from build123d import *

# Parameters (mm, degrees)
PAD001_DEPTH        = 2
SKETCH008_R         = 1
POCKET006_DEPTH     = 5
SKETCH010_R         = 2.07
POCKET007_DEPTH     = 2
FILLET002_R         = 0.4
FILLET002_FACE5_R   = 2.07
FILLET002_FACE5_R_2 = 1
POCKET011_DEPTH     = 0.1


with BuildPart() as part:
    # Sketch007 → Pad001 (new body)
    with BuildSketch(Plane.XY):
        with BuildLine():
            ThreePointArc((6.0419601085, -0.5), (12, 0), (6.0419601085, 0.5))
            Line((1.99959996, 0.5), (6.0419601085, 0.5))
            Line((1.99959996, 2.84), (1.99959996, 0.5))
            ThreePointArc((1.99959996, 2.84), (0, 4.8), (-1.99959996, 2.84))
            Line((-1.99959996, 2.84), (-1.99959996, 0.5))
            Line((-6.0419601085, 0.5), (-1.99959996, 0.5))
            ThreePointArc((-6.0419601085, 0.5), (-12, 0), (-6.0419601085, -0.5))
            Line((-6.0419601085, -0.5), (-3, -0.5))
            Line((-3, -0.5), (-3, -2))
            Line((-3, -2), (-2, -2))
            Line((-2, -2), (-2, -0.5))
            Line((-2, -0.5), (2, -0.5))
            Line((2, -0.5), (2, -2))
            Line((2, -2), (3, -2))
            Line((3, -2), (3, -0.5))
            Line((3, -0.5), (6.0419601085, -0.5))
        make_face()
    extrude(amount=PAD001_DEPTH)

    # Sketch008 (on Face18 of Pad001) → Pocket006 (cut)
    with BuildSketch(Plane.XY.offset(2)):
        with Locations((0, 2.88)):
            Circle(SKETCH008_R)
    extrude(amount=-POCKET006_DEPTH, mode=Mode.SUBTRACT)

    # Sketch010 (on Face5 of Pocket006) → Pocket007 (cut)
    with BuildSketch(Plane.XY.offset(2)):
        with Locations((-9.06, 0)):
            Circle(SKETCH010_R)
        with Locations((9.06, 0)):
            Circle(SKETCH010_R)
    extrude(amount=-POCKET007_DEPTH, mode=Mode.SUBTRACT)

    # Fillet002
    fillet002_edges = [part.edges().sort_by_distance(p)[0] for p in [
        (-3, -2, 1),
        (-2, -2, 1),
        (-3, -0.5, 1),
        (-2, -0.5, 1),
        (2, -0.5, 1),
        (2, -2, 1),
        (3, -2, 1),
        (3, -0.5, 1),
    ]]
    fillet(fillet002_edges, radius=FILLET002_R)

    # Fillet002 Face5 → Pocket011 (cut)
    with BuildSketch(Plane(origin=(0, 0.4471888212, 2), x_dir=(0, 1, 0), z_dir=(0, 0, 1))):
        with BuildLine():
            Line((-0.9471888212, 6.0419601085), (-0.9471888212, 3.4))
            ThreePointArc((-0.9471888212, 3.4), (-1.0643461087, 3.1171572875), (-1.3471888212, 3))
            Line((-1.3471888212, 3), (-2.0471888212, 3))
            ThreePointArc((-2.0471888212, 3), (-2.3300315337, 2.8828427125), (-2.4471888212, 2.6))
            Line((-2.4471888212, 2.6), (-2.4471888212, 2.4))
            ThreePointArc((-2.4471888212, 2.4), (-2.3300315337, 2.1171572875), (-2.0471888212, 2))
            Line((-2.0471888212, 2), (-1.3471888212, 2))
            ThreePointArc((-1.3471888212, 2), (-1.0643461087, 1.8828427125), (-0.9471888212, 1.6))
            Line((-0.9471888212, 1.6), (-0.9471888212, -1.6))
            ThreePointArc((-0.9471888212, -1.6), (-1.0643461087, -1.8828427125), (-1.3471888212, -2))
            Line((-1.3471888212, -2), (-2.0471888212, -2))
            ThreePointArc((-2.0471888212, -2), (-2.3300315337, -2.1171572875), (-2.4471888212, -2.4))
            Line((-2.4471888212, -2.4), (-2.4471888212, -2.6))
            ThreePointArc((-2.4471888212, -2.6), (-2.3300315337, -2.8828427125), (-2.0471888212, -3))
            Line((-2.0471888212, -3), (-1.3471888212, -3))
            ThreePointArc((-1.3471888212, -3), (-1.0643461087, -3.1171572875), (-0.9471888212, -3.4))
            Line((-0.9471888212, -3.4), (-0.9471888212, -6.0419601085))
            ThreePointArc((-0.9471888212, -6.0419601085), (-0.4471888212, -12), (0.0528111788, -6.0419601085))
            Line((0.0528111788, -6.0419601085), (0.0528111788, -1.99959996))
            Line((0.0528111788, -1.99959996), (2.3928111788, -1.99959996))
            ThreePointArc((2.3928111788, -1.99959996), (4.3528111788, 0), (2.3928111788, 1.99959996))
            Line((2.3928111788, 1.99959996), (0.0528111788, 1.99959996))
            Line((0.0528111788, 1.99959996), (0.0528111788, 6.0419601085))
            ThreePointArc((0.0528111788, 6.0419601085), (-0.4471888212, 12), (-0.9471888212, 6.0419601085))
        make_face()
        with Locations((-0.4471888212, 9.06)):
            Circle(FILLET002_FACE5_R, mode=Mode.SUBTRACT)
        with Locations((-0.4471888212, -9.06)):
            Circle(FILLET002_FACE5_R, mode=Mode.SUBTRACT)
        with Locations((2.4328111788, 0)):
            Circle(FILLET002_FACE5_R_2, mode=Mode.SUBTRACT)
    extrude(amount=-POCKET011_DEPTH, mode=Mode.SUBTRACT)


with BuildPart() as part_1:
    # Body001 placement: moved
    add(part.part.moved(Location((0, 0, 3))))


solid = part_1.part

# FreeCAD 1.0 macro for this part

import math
import FreeCAD as App
import Part
import Sketcher
from FreeCAD import Vector


def edges_at(feature, points):
    """Names of the edges that pass closest to the given points."""
    edges = feature.Shape.Edges
    near = lambda p: min(range(len(edges)), key=lambda i: edges[i].distToShape(Part.Vertex(*p))[0])
    return sorted({f"Edge{near(p) + 1}" for p in points})

doc = App.newDocument("Part")
params = doc.addObject("Spreadsheet::Sheet", "Params")
for row, (alias, value) in enumerate([
    ("sketch1_radius", "3 mm"),
    ("sketch1_radius2", "2 mm"),
    ("sketch1_width", "1 mm"),
    ("sketch1_width2", "4 mm"),
    ("sketch1_height", "1.5 mm"),
    ("pad1_length", "2 mm"),
    ("sketch2_diameter", "2 mm"),
    ("pocket1_length", "5 mm"),
    ("sketch3_diameter", "4.14 mm"),
    ("pocket2_length", "2 mm"),
    ("fillet_radius", "0.4 mm"),
    ("sketch4_diameter", "2 mm"),
    ("sketch4_radius", "3 mm"),
    ("sketch4_radius2", "2 mm"),
    ("sketch4_radius3", "0.4 mm"),
    ("sketch4_diameter2", "4.14 mm"),
    ("pocket3_length", "0.1 mm"),
], start=1):
    params.set(f"A{row}", alias)
    params.set(f"B{row}", "=" + value)
    params.setAlias(f"B{row}", alias)

body = doc.addObject("PartDesign::Body", "Body")

# Sketch on XY plane
sketch1 = doc.addObject("Sketcher::SketchObject", "Sketch")
body.addObject(sketch1)
sketch1.AttachmentSupport = (doc.XY_Plane, [""])
sketch1.MapMode = "FlatFace"
sketch1.addGeometry(Part.ArcOfCircle(Part.Circle(Vector(9, 0, 0), Vector(0, 0, 1), 3), math.radians(-170), math.radians(170)), False)
sketch1.addGeometry(Part.LineSegment(Vector(6, 0.5, 0), Vector(2, 0.5, 0)), False)
sketch1.addGeometry(Part.LineSegment(Vector(2, 0.5, 0), Vector(2, 2.8, 0)), False)
sketch1.addGeometry(Part.ArcOfCircle(Part.Circle(Vector(0, 2.8, 0), Vector(0, 0, 1), 2), math.radians(1), math.radians(179)), False)
sketch1.addGeometry(Part.LineSegment(Vector(-2, 2.8, 0), Vector(-2, 0.5, 0)), False)
sketch1.addGeometry(Part.LineSegment(Vector(-2, 0.5, 0), Vector(-6, 0.5, 0)), False)
sketch1.addGeometry(Part.ArcOfCircle(Part.Circle(Vector(-9, 0, 0), Vector(0, 0, 1), 3), math.radians(10), math.radians(350)), False)
sketch1.addGeometry(Part.LineSegment(Vector(-6, -0.5, 0), Vector(-3, -0.5, 0)), False)
sketch1.addGeometry(Part.LineSegment(Vector(-3, -0.5, 0), Vector(-3, -2, 0)), False)
sketch1.addGeometry(Part.LineSegment(Vector(-3, -2, 0), Vector(-2, -2, 0)), False)
sketch1.addGeometry(Part.LineSegment(Vector(-2, -2, 0), Vector(-2, -0.5, 0)), False)
sketch1.addGeometry(Part.LineSegment(Vector(-2, -0.5, 0), Vector(2, -0.5, 0)), False)
sketch1.addGeometry(Part.LineSegment(Vector(2, -0.5, 0), Vector(2, -2, 0)), False)
sketch1.addGeometry(Part.LineSegment(Vector(2, -2, 0), Vector(3, -2, 0)), False)
sketch1.addGeometry(Part.LineSegment(Vector(3, -2, 0), Vector(3, -0.5, 0)), False)
sketch1.addGeometry(Part.LineSegment(Vector(3, -0.5, 0), Vector(6, -0.5, 0)), False)
sketch1.addConstraint(Sketcher.Constraint("Coincident", 0, 2, 1, 1))
sketch1.addConstraint(Sketcher.Constraint("Coincident", 1, 2, 2, 1))
sketch1.addConstraint(Sketcher.Constraint("Coincident", 2, 2, 3, 1))
sketch1.addConstraint(Sketcher.Constraint("Coincident", 3, 2, 4, 1))
sketch1.addConstraint(Sketcher.Constraint("Coincident", 4, 2, 5, 1))
sketch1.addConstraint(Sketcher.Constraint("Coincident", 5, 2, 6, 1))
sketch1.addConstraint(Sketcher.Constraint("Coincident", 6, 2, 7, 1))
sketch1.addConstraint(Sketcher.Constraint("Coincident", 7, 2, 8, 1))
sketch1.addConstraint(Sketcher.Constraint("Coincident", 8, 2, 9, 1))
sketch1.addConstraint(Sketcher.Constraint("Coincident", 9, 2, 10, 1))
sketch1.addConstraint(Sketcher.Constraint("Coincident", 10, 2, 11, 1))
sketch1.addConstraint(Sketcher.Constraint("Coincident", 11, 2, 12, 1))
sketch1.addConstraint(Sketcher.Constraint("Coincident", 12, 2, 13, 1))
sketch1.addConstraint(Sketcher.Constraint("Coincident", 13, 2, 14, 1))
sketch1.addConstraint(Sketcher.Constraint("Coincident", 14, 2, 15, 1))
sketch1.addConstraint(Sketcher.Constraint("Coincident", 15, 2, 0, 1))
sketch1.addConstraint(Sketcher.Constraint("Horizontal", 1))
sketch1.addConstraint(Sketcher.Constraint("Vertical", 2))
sketch1.addConstraint(Sketcher.Constraint("Vertical", 4))
sketch1.addConstraint(Sketcher.Constraint("Horizontal", 5))
sketch1.addConstraint(Sketcher.Constraint("Horizontal", 7))
sketch1.addConstraint(Sketcher.Constraint("Vertical", 8))
sketch1.addConstraint(Sketcher.Constraint("Horizontal", 9))
sketch1.addConstraint(Sketcher.Constraint("Vertical", 10))
sketch1.addConstraint(Sketcher.Constraint("Horizontal", 11))
sketch1.addConstraint(Sketcher.Constraint("Vertical", 12))
sketch1.addConstraint(Sketcher.Constraint("Horizontal", 13))
sketch1.addConstraint(Sketcher.Constraint("Vertical", 14))
sketch1.addConstraint(Sketcher.Constraint("Horizontal", 15))
sketch1.addConstraint(Sketcher.Constraint("Equal", 0, 6))
sketch1.addConstraint(Sketcher.Constraint("Symmetric", 0, 3, 6, 3, -1, 1))
sketch1.addConstraint(Sketcher.Constraint("Symmetric", 2, 2, 3, 2, -2))
sketch1.addConstraint(Sketcher.Constraint("Symmetric", 0, 2, 5, 2, -2))
sketch1.addConstraint(Sketcher.Constraint("Symmetric", 9, 2, 12, 2, -2))
sketch1.addConstraint(Sketcher.Constraint("Symmetric", 7, 2, 14, 2, -2))
sketch1.addConstraint(Sketcher.Constraint("Horizontal", 7, 2, 10, 2))
sketch1.addConstraint(Sketcher.Constraint("Vertical", 5, 2, 6, 2))
sketch1.addConstraint(Sketcher.Constraint("Radius", 0, 3.0))
sketch1.addConstraint(Sketcher.Constraint("Radius", 3, 2.0))
sketch1.addConstraint(Sketcher.Constraint("DistanceX", 9, 1, 9, 2, 1.0))
sketch1.addConstraint(Sketcher.Constraint("DistanceX", 11, 1, 11, 2, 4.0))
sketch1.addConstraint(Sketcher.Constraint("DistanceY", 8, 2, 8, 1, 1.5))
sketch1.addConstraint(Sketcher.Constraint("DistanceX", -1, 1, 0, 3, 9.0))
sketch1.addConstraint(Sketcher.Constraint("DistanceY", 8, 2, -1, 1, 2.0))
sketch1.addConstraint(Sketcher.Constraint("DistanceY", 2, 1, 2, 2, 2.34))
sketch1.addConstraint(Sketcher.Constraint("DistanceY", -1, 1, 3, 3, 2.8))
sketch1.setExpression("Constraints[37]", "Params.sketch1_radius")
sketch1.setExpression("Constraints[38]", "Params.sketch1_radius2")
sketch1.setExpression("Constraints[39]", "Params.sketch1_width")
sketch1.setExpression("Constraints[40]", "Params.sketch1_width2")
sketch1.setExpression("Constraints[41]", "Params.sketch1_height")
pad1 = doc.addObject("PartDesign::Pad", "Pad")
body.addObject(pad1)
pad1.Profile = sketch1
pad1.setExpression("Length", "Params.pad1_length")

# Sketch on XY plane
sketch2 = doc.addObject("Sketcher::SketchObject", "Sketch001")
body.addObject(sketch2)
sketch2.AttachmentSupport = (doc.XY_Plane, [""])
sketch2.MapMode = "FlatFace"
sketch2.AttachmentOffset = App.Placement(Vector(0, 0, 2), App.Rotation())
sketch2.addGeometry(Part.Circle(Vector(0, 2.9, 0), Vector(0, 0, 1), 1), False)
sketch2.addConstraint(Sketcher.Constraint("PointOnObject", 0, 3, -2))
sketch2.addConstraint(Sketcher.Constraint("Diameter", 0, 2.0))
sketch2.addConstraint(Sketcher.Constraint("DistanceY", -1, 1, 0, 3, 2.88))
sketch2.setExpression("Constraints[1]", "Params.sketch2_diameter")
pocket1 = doc.addObject("PartDesign::Pocket", "Pocket")
body.addObject(pocket1)
pocket1.Profile = sketch2
pocket1.setExpression("Length", "Params.pocket1_length")

# Sketch on XY plane
sketch3 = doc.addObject("Sketcher::SketchObject", "Sketch002")
body.addObject(sketch3)
sketch3.AttachmentSupport = (doc.XY_Plane, [""])
sketch3.MapMode = "FlatFace"
sketch3.AttachmentOffset = App.Placement(Vector(0, 0, 2), App.Rotation())
sketch3.addGeometry(Part.Circle(Vector(-9.1, 0, 0), Vector(0, 0, 1), 2.1), False)
sketch3.addGeometry(Part.Circle(Vector(9.1, 0, 0), Vector(0, 0, 1), 2.1), False)
sketch3.addConstraint(Sketcher.Constraint("Equal", 0, 1))
sketch3.addConstraint(Sketcher.Constraint("Symmetric", 0, 3, 1, 3, -1, 1))
sketch3.addConstraint(Sketcher.Constraint("PointOnObject", 0, 3, -1))
sketch3.addConstraint(Sketcher.Constraint("Diameter", 0, 4.14))
sketch3.addConstraint(Sketcher.Constraint("DistanceX", 0, 3, -1, 1, 9.06))
sketch3.setExpression("Constraints[3]", "Params.sketch3_diameter")
pocket2 = doc.addObject("PartDesign::Pocket", "Pocket001")
body.addObject(pocket2)
pocket2.Profile = sketch3
pocket2.setExpression("Length", "Params.pocket2_length")
doc.recompute()

fillet = doc.addObject("PartDesign::Fillet", "Fillet")
body.addObject(fillet)
fillet.Base = (pocket2, edges_at(pocket2, [
    (-3, -2, 1),
    (-2, -2, 1),
    (-3, -0.5, 1),
    (-2, -0.5, 1),
    (2, -0.5, 1),
    (2, -2, 1),
    (3, -2, 1),
    (3, -0.5, 1),
]))
fillet.setExpression("Radius", "Params.fillet_radius")

# Sketch on XY plane
sketch4 = doc.addObject("Sketcher::SketchObject", "Sketch003")
body.addObject(sketch4)
sketch4.AttachmentSupport = (doc.XY_Plane, [""])
sketch4.MapMode = "FlatFace"
sketch4.AttachmentOffset = App.Placement(Vector(0, 0, 2), App.Rotation())
sketch4.addGeometry(Part.LineSegment(Vector(-6.04, -0.5, 0), Vector(-3.4, -0.5, 0)), False)
sketch4.addGeometry(Part.ArcOfCircle(Part.Circle(Vector(-3.4, -0.9, 0), Vector(0, 0, 1), 0.4), math.radians(0), math.radians(90)), False)
sketch4.addGeometry(Part.LineSegment(Vector(-3, -0.9, 0), Vector(-3, -1.6, 0)), False)
sketch4.addGeometry(Part.ArcOfCircle(Part.Circle(Vector(-2.6, -1.6, 0), Vector(0, 0, 1), 0.4), math.radians(180), math.radians(270)), False)
sketch4.addGeometry(Part.LineSegment(Vector(-2.6, -2, 0), Vector(-2.4, -2, 0)), False)
sketch4.addGeometry(Part.ArcOfCircle(Part.Circle(Vector(-2.4, -1.6, 0), Vector(0, 0, 1), 0.4), math.radians(-90), math.radians(0)), False)
sketch4.addGeometry(Part.LineSegment(Vector(-2, -1.6, 0), Vector(-2, -0.9, 0)), False)
sketch4.addGeometry(Part.ArcOfCircle(Part.Circle(Vector(-1.6, -0.9, 0), Vector(0, 0, 1), 0.4), math.radians(90), math.radians(180)), False)
sketch4.addGeometry(Part.LineSegment(Vector(-1.6, -0.5, 0), Vector(1.6, -0.5, 0)), False)
sketch4.addGeometry(Part.ArcOfCircle(Part.Circle(Vector(1.6, -0.9, 0), Vector(0, 0, 1), 0.4), math.radians(0), math.radians(90)), False)
sketch4.addGeometry(Part.LineSegment(Vector(2, -0.9, 0), Vector(2, -1.6, 0)), False)
sketch4.addGeometry(Part.ArcOfCircle(Part.Circle(Vector(2.4, -1.6, 0), Vector(0, 0, 1), 0.4), math.radians(180), math.radians(270)), False)
sketch4.addGeometry(Part.LineSegment(Vector(2.4, -2, 0), Vector(2.6, -2, 0)), False)
sketch4.addGeometry(Part.ArcOfCircle(Part.Circle(Vector(2.6, -1.6, 0), Vector(0, 0, 1), 0.4), math.radians(-90), math.radians(0)), False)
sketch4.addGeometry(Part.LineSegment(Vector(3, -1.6, 0), Vector(3, -0.9, 0)), False)
sketch4.addGeometry(Part.ArcOfCircle(Part.Circle(Vector(3.4, -0.9, 0), Vector(0, 0, 1), 0.4), math.radians(90), math.radians(180)), False)
sketch4.addGeometry(Part.LineSegment(Vector(3.4, -0.5, 0), Vector(6.04, -0.5, 0)), False)
sketch4.addGeometry(Part.ArcOfCircle(Part.Circle(Vector(9, 0, 0), Vector(0, 0, 1), 3), math.radians(-170), math.radians(170)), False)
sketch4.addGeometry(Part.LineSegment(Vector(6.04, 0.5, 0), Vector(2, 0.5, 0)), False)
sketch4.addGeometry(Part.LineSegment(Vector(2, 0.5, 0), Vector(2, 2.84, 0)), False)
sketch4.addGeometry(Part.ArcOfCircle(Part.Circle(Vector(0, 2.8, 0), Vector(0, 0, 1), 2), math.radians(1), math.radians(179)), False)
sketch4.addGeometry(Part.LineSegment(Vector(-2, 2.84, 0), Vector(-2, 0.5, 0)), False)
sketch4.addGeometry(Part.LineSegment(Vector(-2, 0.5, 0), Vector(-6.04, 0.5, 0)), False)
sketch4.addGeometry(Part.ArcOfCircle(Part.Circle(Vector(-9, 0, 0), Vector(0, 0, 1), 3), math.radians(10), math.radians(350)), False)
sketch4.addGeometry(Part.Circle(Vector(9.06, 0, 0), Vector(0, 0, 1), 2.07), False)
sketch4.addGeometry(Part.Circle(Vector(-9.06, 0, 0), Vector(0, 0, 1), 2.07), False)
sketch4.addGeometry(Part.Circle(Vector(0, 2.88, 0), Vector(0, 0, 1), 1), False)
sketch4.addConstraint(Sketcher.Constraint("Tangent", 0, 2, 1, 2))
sketch4.addConstraint(Sketcher.Constraint("Tangent", 1, 1, 2, 1))
sketch4.addConstraint(Sketcher.Constraint("Tangent", 2, 2, 3, 1))
sketch4.addConstraint(Sketcher.Constraint("Tangent", 3, 2, 4, 1))
sketch4.addConstraint(Sketcher.Constraint("Tangent", 4, 2, 5, 1))
sketch4.addConstraint(Sketcher.Constraint("Tangent", 5, 2, 6, 1))
sketch4.addConstraint(Sketcher.Constraint("Tangent", 6, 2, 7, 2))
sketch4.addConstraint(Sketcher.Constraint("Tangent", 7, 1, 8, 1))
sketch4.addConstraint(Sketcher.Constraint("Tangent", 8, 2, 9, 2))
sketch4.addConstraint(Sketcher.Constraint("Tangent", 9, 1, 10, 1))
sketch4.addConstraint(Sketcher.Constraint("Tangent", 10, 2, 11, 1))
sketch4.addConstraint(Sketcher.Constraint("Tangent", 11, 2, 12, 1))
sketch4.addConstraint(Sketcher.Constraint("Tangent", 12, 2, 13, 1))
sketch4.addConstraint(Sketcher.Constraint("Tangent", 13, 2, 14, 1))
sketch4.addConstraint(Sketcher.Constraint("Tangent", 14, 2, 15, 2))
sketch4.addConstraint(Sketcher.Constraint("Tangent", 15, 1, 16, 1))
sketch4.addConstraint(Sketcher.Constraint("Coincident", 16, 2, 17, 1))
sketch4.addConstraint(Sketcher.Constraint("Coincident", 17, 2, 18, 1))
sketch4.addConstraint(Sketcher.Constraint("Coincident", 18, 2, 19, 1))
sketch4.addConstraint(Sketcher.Constraint("Coincident", 19, 2, 20, 1))
sketch4.addConstraint(Sketcher.Constraint("Coincident", 20, 2, 21, 1))
sketch4.addConstraint(Sketcher.Constraint("Coincident", 21, 2, 22, 1))
sketch4.addConstraint(Sketcher.Constraint("Coincident", 22, 2, 23, 1))
sketch4.addConstraint(Sketcher.Constraint("Coincident", 23, 2, 0, 1))
sketch4.addConstraint(Sketcher.Constraint("Horizontal", 0))
sketch4.addConstraint(Sketcher.Constraint("Vertical", 2))
sketch4.addConstraint(Sketcher.Constraint("Horizontal", 4))
sketch4.addConstraint(Sketcher.Constraint("Vertical", 6))
sketch4.addConstraint(Sketcher.Constraint("Horizontal", 8))
sketch4.addConstraint(Sketcher.Constraint("Vertical", 10))
sketch4.addConstraint(Sketcher.Constraint("Horizontal", 12))
sketch4.addConstraint(Sketcher.Constraint("Vertical", 14))
sketch4.addConstraint(Sketcher.Constraint("Horizontal", 16))
sketch4.addConstraint(Sketcher.Constraint("Horizontal", 18))
sketch4.addConstraint(Sketcher.Constraint("Vertical", 19))
sketch4.addConstraint(Sketcher.Constraint("Vertical", 21))
sketch4.addConstraint(Sketcher.Constraint("Horizontal", 22))
sketch4.addConstraint(Sketcher.Constraint("Equal", 1, 3))
sketch4.addConstraint(Sketcher.Constraint("Equal", 3, 5))
sketch4.addConstraint(Sketcher.Constraint("Equal", 5, 7))
sketch4.addConstraint(Sketcher.Constraint("Equal", 7, 9))
sketch4.addConstraint(Sketcher.Constraint("Equal", 9, 11))
sketch4.addConstraint(Sketcher.Constraint("Equal", 11, 13))
sketch4.addConstraint(Sketcher.Constraint("Equal", 13, 15))
sketch4.addConstraint(Sketcher.Constraint("Equal", 17, 23))
sketch4.addConstraint(Sketcher.Constraint("Equal", 24, 25))
sketch4.addConstraint(Sketcher.Constraint("Symmetric", 17, 3, 23, 3, -1, 1))
sketch4.addConstraint(Sketcher.Constraint("Symmetric", 24, 3, 25, 3, -1, 1))
sketch4.addConstraint(Sketcher.Constraint("Symmetric", 5, 3, 11, 3, -2))
sketch4.addConstraint(Sketcher.Constraint("Symmetric", 1, 3, 15, 3, -2))
sketch4.addConstraint(Sketcher.Constraint("Symmetric", 19, 2, 20, 2, -2))
sketch4.addConstraint(Sketcher.Constraint("Symmetric", 17, 2, 22, 2, -2))
sketch4.addConstraint(Sketcher.Constraint("PointOnObject", 24, 3, -1))
sketch4.addConstraint(Sketcher.Constraint("PointOnObject", 26, 3, -2))
sketch4.addConstraint(Sketcher.Constraint("Horizontal", 1, 3, 7, 3))
sketch4.addConstraint(Sketcher.Constraint("Vertical", 16, 2, 17, 2))
sketch4.addConstraint(Sketcher.Constraint("Diameter", 26, 2.0))
sketch4.addConstraint(Sketcher.Constraint("Radius", 17, 3.0))
sketch4.addConstraint(Sketcher.Constraint("Radius", 20, 2.0))
sketch4.addConstraint(Sketcher.Constraint("Radius", 1, 0.4))
sketch4.addConstraint(Sketcher.Constraint("Diameter", 24, 4.14))
sketch4.addConstraint(Sketcher.Constraint("DistanceX", 4, 1, 4, 2, 0.2))
sketch4.addConstraint(Sketcher.Constraint("DistanceX", 8, 1, 8, 2, 3.2))
sketch4.addConstraint(Sketcher.Constraint("DistanceY", 2, 2, 2, 1, 0.7))
sketch4.addConstraint(Sketcher.Constraint("DistanceX", -1, 1, 17, 3, 9.0))
sketch4.addConstraint(Sketcher.Constraint("DistanceY", 3, 2, -1, 1, 2.0))
sketch4.addConstraint(Sketcher.Constraint("DistanceY", 19, 1, 19, 2, 2.34))
sketch4.addConstraint(Sketcher.Constraint("DistanceY", -1, 1, 20, 3, 2.8))
sketch4.addConstraint(Sketcher.Constraint("DistanceX", -1, 1, 24, 3, 9.06))
sketch4.addConstraint(Sketcher.Constraint("DistanceY", -1, 1, 26, 3, 2.88))
sketch4.setExpression("Constraints[56]", "Params.sketch4_diameter")
sketch4.setExpression("Constraints[57]", "Params.sketch4_radius")
sketch4.setExpression("Constraints[58]", "Params.sketch4_radius2")
sketch4.setExpression("Constraints[59]", "Params.sketch4_radius3")
sketch4.setExpression("Constraints[60]", "Params.sketch4_diameter2")
pocket3 = doc.addObject("PartDesign::Pocket", "Pocket002")
body.addObject(pocket3)
pocket3.Profile = sketch4
pocket3.setExpression("Length", "Params.pocket3_length")
body2 = doc.addObject("PartDesign::Body", "Body001")
doc.recompute()

body.Placement = App.Placement(Vector(0, 0, 3), App.Rotation(Vector(0, 0, 1), 0))
boolean = doc.addObject("PartDesign::Boolean", "Boolean")
body2.addObject(boolean)
boolean.Type = "Fuse"
boolean.addObjects([body])

doc.recompute()
